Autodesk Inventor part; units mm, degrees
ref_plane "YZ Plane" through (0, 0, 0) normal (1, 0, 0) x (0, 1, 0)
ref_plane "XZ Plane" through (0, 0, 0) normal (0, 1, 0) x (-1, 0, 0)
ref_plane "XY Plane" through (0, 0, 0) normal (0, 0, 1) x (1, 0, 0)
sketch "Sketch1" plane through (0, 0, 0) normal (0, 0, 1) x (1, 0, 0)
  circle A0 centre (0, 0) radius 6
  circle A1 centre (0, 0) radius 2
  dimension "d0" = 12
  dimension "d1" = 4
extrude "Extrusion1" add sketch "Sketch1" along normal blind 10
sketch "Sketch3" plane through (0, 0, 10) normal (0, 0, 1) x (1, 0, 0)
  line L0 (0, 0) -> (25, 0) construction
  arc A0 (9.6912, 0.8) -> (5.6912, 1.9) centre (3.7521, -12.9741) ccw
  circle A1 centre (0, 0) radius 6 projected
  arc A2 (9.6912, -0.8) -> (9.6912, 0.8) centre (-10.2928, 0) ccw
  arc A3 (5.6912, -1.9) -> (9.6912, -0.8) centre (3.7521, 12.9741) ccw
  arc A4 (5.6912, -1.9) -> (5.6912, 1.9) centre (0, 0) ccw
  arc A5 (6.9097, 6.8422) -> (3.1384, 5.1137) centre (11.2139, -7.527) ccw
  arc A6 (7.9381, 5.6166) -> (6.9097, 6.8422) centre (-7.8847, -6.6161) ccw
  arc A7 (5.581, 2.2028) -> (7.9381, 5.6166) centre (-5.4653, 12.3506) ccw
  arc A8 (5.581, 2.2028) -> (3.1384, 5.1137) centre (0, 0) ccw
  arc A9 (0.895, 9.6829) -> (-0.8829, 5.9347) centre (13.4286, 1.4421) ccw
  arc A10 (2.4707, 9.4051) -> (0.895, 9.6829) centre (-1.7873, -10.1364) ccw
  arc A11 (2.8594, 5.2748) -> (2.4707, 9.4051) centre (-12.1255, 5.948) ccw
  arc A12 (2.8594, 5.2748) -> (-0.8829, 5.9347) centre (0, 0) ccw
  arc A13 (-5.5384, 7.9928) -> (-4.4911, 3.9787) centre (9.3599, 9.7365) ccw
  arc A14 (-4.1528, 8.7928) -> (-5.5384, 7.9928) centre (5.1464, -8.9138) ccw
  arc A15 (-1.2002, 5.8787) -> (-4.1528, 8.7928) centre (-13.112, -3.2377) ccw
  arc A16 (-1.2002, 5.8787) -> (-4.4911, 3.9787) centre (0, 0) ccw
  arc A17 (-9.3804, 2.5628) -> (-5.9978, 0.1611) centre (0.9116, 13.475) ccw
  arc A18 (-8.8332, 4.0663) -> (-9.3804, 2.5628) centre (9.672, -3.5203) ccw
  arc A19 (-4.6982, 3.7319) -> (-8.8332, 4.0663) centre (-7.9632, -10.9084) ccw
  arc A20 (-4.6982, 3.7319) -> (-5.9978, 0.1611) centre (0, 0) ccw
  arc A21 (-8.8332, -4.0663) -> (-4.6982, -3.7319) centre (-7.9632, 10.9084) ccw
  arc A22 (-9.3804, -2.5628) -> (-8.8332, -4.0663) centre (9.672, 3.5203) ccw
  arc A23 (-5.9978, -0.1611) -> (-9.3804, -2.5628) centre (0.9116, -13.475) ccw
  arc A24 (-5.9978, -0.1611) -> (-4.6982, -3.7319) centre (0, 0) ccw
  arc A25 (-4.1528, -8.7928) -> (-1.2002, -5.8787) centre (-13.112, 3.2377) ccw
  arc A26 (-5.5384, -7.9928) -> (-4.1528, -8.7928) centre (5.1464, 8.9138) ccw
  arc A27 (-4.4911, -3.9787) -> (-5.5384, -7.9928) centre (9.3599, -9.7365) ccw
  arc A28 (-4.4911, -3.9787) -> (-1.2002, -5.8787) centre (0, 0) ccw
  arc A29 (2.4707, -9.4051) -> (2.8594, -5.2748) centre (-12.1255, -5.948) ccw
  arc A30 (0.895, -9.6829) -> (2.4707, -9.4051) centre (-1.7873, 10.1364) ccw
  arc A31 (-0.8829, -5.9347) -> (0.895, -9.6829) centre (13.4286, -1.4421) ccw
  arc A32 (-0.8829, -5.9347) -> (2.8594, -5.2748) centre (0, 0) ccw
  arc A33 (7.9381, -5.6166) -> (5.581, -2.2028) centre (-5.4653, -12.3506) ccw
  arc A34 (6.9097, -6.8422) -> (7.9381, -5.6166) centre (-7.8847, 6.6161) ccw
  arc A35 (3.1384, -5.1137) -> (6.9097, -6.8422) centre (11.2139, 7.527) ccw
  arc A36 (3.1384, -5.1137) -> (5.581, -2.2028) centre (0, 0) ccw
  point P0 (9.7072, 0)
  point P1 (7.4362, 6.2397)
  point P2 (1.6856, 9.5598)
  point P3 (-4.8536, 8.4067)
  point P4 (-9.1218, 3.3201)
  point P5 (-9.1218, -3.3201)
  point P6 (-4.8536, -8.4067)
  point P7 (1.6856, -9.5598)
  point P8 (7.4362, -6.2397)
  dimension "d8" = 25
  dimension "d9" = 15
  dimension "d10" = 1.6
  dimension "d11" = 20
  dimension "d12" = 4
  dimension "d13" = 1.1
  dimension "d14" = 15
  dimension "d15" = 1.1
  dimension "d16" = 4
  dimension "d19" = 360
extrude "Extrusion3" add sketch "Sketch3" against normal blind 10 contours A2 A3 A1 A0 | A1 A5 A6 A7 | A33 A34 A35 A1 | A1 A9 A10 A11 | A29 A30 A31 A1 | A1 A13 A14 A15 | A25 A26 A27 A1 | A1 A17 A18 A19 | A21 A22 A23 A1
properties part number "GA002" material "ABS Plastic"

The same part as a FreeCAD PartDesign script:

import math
import FreeCAD as App
import Part
import Sketcher

V = App.Vector

doc = App.newDocument("Part")
body = doc.addObject("PartDesign::Body", "Body")

sketch1 = doc.addObject("Sketcher::SketchObject", "Sketch")
body.addObject(sketch1)
sketch1.AttachmentSupport = (doc.XY_Plane, [""])
sketch1.MapMode = "FlatFace"
sketch1.addGeometry(Part.Circle(V(0, 0, 0), V(0, 0, 1), 6), False)
sketch1.addGeometry(Part.Circle(V(0, 0, 0), V(0, 0, 1), 2), False)
sketch1.addConstraint(Sketcher.Constraint("Coincident", 0, 3, -1, 1))
sketch1.addConstraint(Sketcher.Constraint("Coincident", 1, 3, -1, 1))
sketch1.addConstraint(Sketcher.Constraint("Diameter", 0, 12.0))
sketch1.addConstraint(Sketcher.Constraint("Diameter", 1, 4.0))
pad1 = doc.addObject("PartDesign::Pad", "Pad")
body.addObject(pad1)
pad1.Profile = sketch1
pad1.Length = 10

sketch2 = doc.addObject("Sketcher::SketchObject", "Sketch001")
body.addObject(sketch2)
sketch2.AttachmentSupport = (doc.XY_Plane, [""])
sketch2.MapMode = "FlatFace"
sketch2.AttachmentOffset = App.Placement(V(0, 0, 10), App.Rotation())
sketch2.addGeometry(Part.ArcOfCircle(Part.Circle(V(-10.3, 0, 0), V(0, 0, 1), 20), math.radians(-2.29), math.radians(2.29)), False)
sketch2.addGeometry(Part.ArcOfCircle(Part.Circle(V(3.8, -13, 0), V(0, 0, 1), 15), math.radians(66.68), math.radians(82.57)), False)
sketch2.addGeometry(Part.ArcOfCircle(Part.Circle(V(0, 0, 0), V(0, 0, 1), 6), math.radians(-18), math.radians(18)), False)
sketch2.addGeometry(Part.ArcOfCircle(Part.Circle(V(3.8, 13, 0), V(0, 0, 1), 15), math.radians(-82.57), math.radians(-66.68)), False)
sketch2.addGeometry(Part.ArcOfCircle(Part.Circle(V(0, 0, 0), V(0, 0, 1), 6), math.radians(22), math.radians(58)), False)
sketch2.addGeometry(Part.ArcOfCircle(Part.Circle(V(-5.5, 12.3, 0), V(0, 0, 1), 15), math.radians(-42.57), math.radians(-26.67)), False)
sketch2.addGeometry(Part.ArcOfCircle(Part.Circle(V(-7.9, -6.6, 0), V(0, 0, 1), 20), math.radians(37.71), math.radians(42.29)), False)
sketch2.addGeometry(Part.ArcOfCircle(Part.Circle(V(11.2, -7.5, 0), V(0, 0, 1), 15), math.radians(106.68), math.radians(122.57)), False)
sketch2.addGeometry(Part.ArcOfCircle(Part.Circle(V(-5.5, -12.4, 0), V(0, 0, 1), 15), math.radians(26.68), math.radians(42.57)), False)
sketch2.addGeometry(Part.ArcOfCircle(Part.Circle(V(0, 0, 0), V(0, 0, 1), 6), math.radians(-58), math.radians(-22)), False)
sketch2.addGeometry(Part.ArcOfCircle(Part.Circle(V(11.2, 7.5, 0), V(0, 0, 1), 15), math.radians(-122.57), math.radians(-106.67)), False)
sketch2.addGeometry(Part.ArcOfCircle(Part.Circle(V(-7.9, 6.6, 0), V(0, 0, 1), 20), math.radians(-42.29), math.radians(-37.71)), False)
sketch2.addGeometry(Part.ArcOfCircle(Part.Circle(V(0, 0, 0), V(0, 0, 1), 6), math.radians(62), math.radians(98)), False)
sketch2.addGeometry(Part.ArcOfCircle(Part.Circle(V(-12.1, 5.9, 0), V(0, 0, 1), 15), math.radians(-2.57), math.radians(13.32)), False)
sketch2.addGeometry(Part.ArcOfCircle(Part.Circle(V(-1.8, -10.1, 0), V(0, 0, 1), 20), math.radians(77.71), math.radians(82.3)), False)
sketch2.addGeometry(Part.ArcOfCircle(Part.Circle(V(13.4, 1.4, 0), V(0, 0, 1), 15), math.radians(146.68), math.radians(162.57)), False)
sketch2.addGeometry(Part.ArcOfCircle(Part.Circle(V(-12.1, -5.9, 0), V(0, 0, 1), 15), math.radians(-13.32), math.radians(2.57)), False)
sketch2.addGeometry(Part.ArcOfCircle(Part.Circle(V(0, 0, 0), V(0, 0, 1), 6), math.radians(-98), math.radians(-62)), False)
sketch2.addGeometry(Part.ArcOfCircle(Part.Circle(V(13.4, -1.4, 0), V(0, 0, 1), 15), math.radians(-162.57), math.radians(-146.68)), False)
sketch2.addGeometry(Part.ArcOfCircle(Part.Circle(V(-1.8, 10.2, 0), V(0, 0, 1), 20), math.radians(-82.29), math.radians(-77.71)), False)
sketch2.addGeometry(Part.ArcOfCircle(Part.Circle(V(0, 0, 0), V(0, 0, 1), 6), math.radians(102), math.radians(138)), False)
sketch2.addGeometry(Part.ArcOfCircle(Part.Circle(V(-13.1, -3.2, 0), V(0, 0, 1), 15), math.radians(37.43), math.radians(53.32)), False)
sketch2.addGeometry(Part.ArcOfCircle(Part.Circle(V(5.1, -8.9, 0), V(0, 0, 1), 20), math.radians(117.71), math.radians(122.29)), False)
sketch2.addGeometry(Part.ArcOfCircle(Part.Circle(V(9.4, 9.7, 0), V(0, 0, 1), 15), math.radians(-173.32), math.radians(-157.43)), False)
sketch2.addGeometry(Part.ArcOfCircle(Part.Circle(V(-13.1, 3.2, 0), V(0, 0, 1), 15), math.radians(-53.32), math.radians(-37.43)), False)
sketch2.addGeometry(Part.ArcOfCircle(Part.Circle(V(0, 0, 0), V(0, 0, 1), 6), math.radians(-138), math.radians(-102)), False)
sketch2.addGeometry(Part.ArcOfCircle(Part.Circle(V(9.4, -9.7, 0), V(0, 0, 1), 15), math.radians(157.43), math.radians(173.33)), False)
sketch2.addGeometry(Part.ArcOfCircle(Part.Circle(V(5.2, 8.9, 0), V(0, 0, 1), 20), math.radians(-122.29), math.radians(-117.71)), False)
sketch2.addGeometry(Part.ArcOfCircle(Part.Circle(V(0, 0, 0), V(0, 0, 1), 6), math.radians(142), math.radians(178)), False)
sketch2.addGeometry(Part.ArcOfCircle(Part.Circle(V(-8, -10.9, 0), V(0, 0, 1), 15), math.radians(77.43), math.radians(93.33)), False)
sketch2.addGeometry(Part.ArcOfCircle(Part.Circle(V(9.7, -3.5, 0), V(0, 0, 1), 20), math.radians(157.71), math.radians(162.29)), False)
sketch2.addGeometry(Part.ArcOfCircle(Part.Circle(V(0.9, 13.5, 0), V(0, 0, 1), 15), math.radians(-133.33), math.radians(-117.43)), False)
sketch2.addGeometry(Part.ArcOfCircle(Part.Circle(V(-8, 10.9, 0), V(0, 0, 1), 15), math.radians(-93.33), math.radians(-77.43)), False)
sketch2.addGeometry(Part.ArcOfCircle(Part.Circle(V(0, 0, 0), V(0, 0, 1), 6), math.radians(-178), math.radians(-142)), False)
sketch2.addGeometry(Part.ArcOfCircle(Part.Circle(V(0.9, -13.5, 0), V(0, 0, 1), 15), math.radians(117.43), math.radians(133.32)), False)
sketch2.addGeometry(Part.ArcOfCircle(Part.Circle(V(9.7, 3.5, 0), V(0, 0, 1), 20), math.radians(-162.29), math.radians(-157.71)), False)
sketch2.addConstraint(Sketcher.Constraint("Coincident", 0, 2, 1, 1))
sketch2.addConstraint(Sketcher.Constraint("Coincident", 1, 2, 2, 2))
sketch2.addConstraint(Sketcher.Constraint("Coincident", 2, 1, 3, 1))
sketch2.addConstraint(Sketcher.Constraint("Coincident", 3, 2, 0, 1))
sketch2.addConstraint(Sketcher.Constraint("Coincident", 4, 1, 5, 1))
sketch2.addConstraint(Sketcher.Constraint("Coincident", 5, 2, 6, 1))
sketch2.addConstraint(Sketcher.Constraint("Coincident", 6, 2, 7, 1))
sketch2.addConstraint(Sketcher.Constraint("Coincident", 7, 2, 4, 2))
sketch2.addConstraint(Sketcher.Constraint("Coincident", 8, 2, 9, 2))
sketch2.addConstraint(Sketcher.Constraint("Coincident", 9, 1, 10, 1))
sketch2.addConstraint(Sketcher.Constraint("Coincident", 10, 2, 11, 1))
sketch2.addConstraint(Sketcher.Constraint("Coincident", 11, 2, 8, 1))
sketch2.addConstraint(Sketcher.Constraint("Coincident", 12, 1, 13, 1))
sketch2.addConstraint(Sketcher.Constraint("Coincident", 13, 2, 14, 1))
sketch2.addConstraint(Sketcher.Constraint("Coincident", 14, 2, 15, 1))
sketch2.addConstraint(Sketcher.Constraint("Coincident", 15, 2, 12, 2))
sketch2.addConstraint(Sketcher.Constraint("Coincident", 16, 2, 17, 2))
sketch2.addConstraint(Sketcher.Constraint("Coincident", 17, 1, 18, 1))
sketch2.addConstraint(Sketcher.Constraint("Coincident", 18, 2, 19, 1))
sketch2.addConstraint(Sketcher.Constraint("Coincident", 19, 2, 16, 1))
sketch2.addConstraint(Sketcher.Constraint("Coincident", 20, 1, 21, 1))
sketch2.addConstraint(Sketcher.Constraint("Coincident", 21, 2, 22, 1))
sketch2.addConstraint(Sketcher.Constraint("Coincident", 22, 2, 23, 1))
sketch2.addConstraint(Sketcher.Constraint("Coincident", 23, 2, 20, 2))
sketch2.addConstraint(Sketcher.Constraint("Coincident", 24, 2, 25, 2))
sketch2.addConstraint(Sketcher.Constraint("Coincident", 25, 1, 26, 1))
sketch2.addConstraint(Sketcher.Constraint("Coincident", 26, 2, 27, 1))
sketch2.addConstraint(Sketcher.Constraint("Coincident", 27, 2, 24, 1))
sketch2.addConstraint(Sketcher.Constraint("Coincident", 28, 1, 29, 1))
sketch2.addConstraint(Sketcher.Constraint("Coincident", 29, 2, 30, 1))
sketch2.addConstraint(Sketcher.Constraint("Coincident", 30, 2, 31, 1))
sketch2.addConstraint(Sketcher.Constraint("Coincident", 31, 2, 28, 2))
sketch2.addConstraint(Sketcher.Constraint("Coincident", 32, 2, 33, 2))
sketch2.addConstraint(Sketcher.Constraint("Coincident", 33, 1, 34, 1))
sketch2.addConstraint(Sketcher.Constraint("Coincident", 34, 2, 35, 1))
sketch2.addConstraint(Sketcher.Constraint("Coincident", 35, 2, 32, 1))
sketch2.addConstraint(Sketcher.Constraint("Coincident", 2, 3, -1, 1))
sketch2.addConstraint(Sketcher.Constraint("Coincident", 4, 3, -1, 1))
sketch2.addConstraint(Sketcher.Constraint("Coincident", 9, 3, -1, 1))
sketch2.addConstraint(Sketcher.Constraint("Coincident", 12, 3, -1, 1))
sketch2.addConstraint(Sketcher.Constraint("Coincident", 17, 3, -1, 1))
sketch2.addConstraint(Sketcher.Constraint("Coincident", 20, 3, -1, 1))
sketch2.addConstraint(Sketcher.Constraint("Coincident", 25, 3, -1, 1))
sketch2.addConstraint(Sketcher.Constraint("Coincident", 28, 3, -1, 1))
sketch2.addConstraint(Sketcher.Constraint("Coincident", 33, 3, -1, 1))
sketch2.addConstraint(Sketcher.Constraint("Equal", 1, 3))
sketch2.addConstraint(Sketcher.Constraint("Equal", 2, 4))
sketch2.addConstraint(Sketcher.Constraint("Equal", 4, 9))
sketch2.addConstraint(Sketcher.Constraint("Equal", 9, 12))
sketch2.addConstraint(Sketcher.Constraint("Equal", 3, 13))
sketch2.addConstraint(Sketcher.Constraint("Equal", 13, 15))
sketch2.addConstraint(Sketcher.Constraint("Equal", 15, 16))
sketch2.addConstraint(Sketcher.Constraint("Equal", 12, 17))
sketch2.addConstraint(Sketcher.Constraint("Equal", 16, 18))
sketch2.addConstraint(Sketcher.Constraint("Equal", 17, 20))
sketch2.addConstraint(Sketcher.Constraint("Equal", 18, 21))
sketch2.addConstraint(Sketcher.Constraint("Equal", 21, 24))
sketch2.addConstraint(Sketcher.Constraint("Equal", 20, 25))
sketch2.addConstraint(Sketcher.Constraint("Equal", 25, 28))
sketch2.addConstraint(Sketcher.Constraint("Equal", 24, 29))
sketch2.addConstraint(Sketcher.Constraint("Equal", 29, 32))
sketch2.addConstraint(Sketcher.Constraint("Equal", 28, 33))
sketch2.addConstraint(Sketcher.Constraint("Symmetric", 1, 3, 3, 3, -1))
sketch2.addConstraint(Sketcher.Constraint("Symmetric", 13, 3, 16, 3, -1))
sketch2.addConstraint(Sketcher.Constraint("Symmetric", 15, 3, 18, 3, -1))
sketch2.addConstraint(Sketcher.Constraint("Symmetric", 21, 3, 24, 3, -1))
sketch2.addConstraint(Sketcher.Constraint("Symmetric", 29, 3, 32, 3, -1))
sketch2.addConstraint(Sketcher.Constraint("Symmetric", 6, 2, 10, 2, -1))
sketch2.addConstraint(Sketcher.Constraint("Symmetric", 5, 2, 11, 2, -1))
sketch2.addConstraint(Sketcher.Constraint("Symmetric", 22, 2, 26, 2, -1))
sketch2.addConstraint(Sketcher.Constraint("Symmetric", 30, 2, 34, 2, -1))
sketch2.addConstraint(Sketcher.Constraint("PointOnObject", 0, 3, -1))
sketch2.addConstraint(Sketcher.Constraint("Vertical", 4, 1, 8, 2))
sketch2.addConstraint(Sketcher.Constraint("Vertical", 7, 2, 9, 1))
sketch2.addConstraint(Sketcher.Constraint("Vertical", 14, 2, 18, 2))
sketch2.addConstraint(Sketcher.Constraint("Vertical", 23, 2, 25, 1))
sketch2.addConstraint(Sketcher.Constraint("Vertical", 21, 2, 27, 2))
sketch2.addConstraint(Sketcher.Constraint("Vertical", 29, 2, 35, 2))
sketch2.addConstraint(Sketcher.Constraint("Radius", 0, 20.0))
sketch2.addConstraint(Sketcher.Constraint("Radius", 1, 15.0))
sketch2.addConstraint(Sketcher.Constraint("Radius", 2, 6.0))
sketch2.addConstraint(Sketcher.Constraint("Radius", 19, 20.022))
sketch2.addConstraint(Sketcher.Constraint("DistanceY", -1, 1, 0, 2, 0.8))
sketch2.addConstraint(Sketcher.Constraint("DistanceY", -1, 1, 1, 2, 1.9))
sketch2.addConstraint(Sketcher.Constraint("Radius", 5, 14.9987))
sketch2.addConstraint(Sketcher.Constraint("Radius", 6, 20.0025))
sketch2.addConstraint(Sketcher.Constraint("Radius", 7, 15.0017))
sketch2.addConstraint(Sketcher.Constraint("Radius", 8, 15.0011))
sketch2.addConstraint(Sketcher.Constraint("Radius", 10, 14.9984))
sketch2.addConstraint(Sketcher.Constraint("Radius", 11, 19.9975))
sketch2.addConstraint(Sketcher.Constraint("Radius", 14, 19.9782))
sketch2.addConstraint(Sketcher.Constraint("Radius", 22, 19.9886))
sketch2.addConstraint(Sketcher.Constraint("Radius", 23, 15.0046))
sketch2.addConstraint(Sketcher.Constraint("Radius", 26, 14.9955))
sketch2.addConstraint(Sketcher.Constraint("Radius", 27, 20.0114))
sketch2.addConstraint(Sketcher.Constraint("Radius", 30, 19.9863))
sketch2.addConstraint(Sketcher.Constraint("Radius", 31, 14.9972))
sketch2.addConstraint(Sketcher.Constraint("Radius", 34, 15.0028))
sketch2.addConstraint(Sketcher.Constraint("Radius", 35, 20.0136))
sketch2.addConstraint(Sketcher.Constraint("DistanceX", -1, 1, 1, 3, 3.752))
sketch2.addConstraint(Sketcher.Constraint("DistanceX", -1, 1, 10, 3, 11.213))
sketch2.addConstraint(Sketcher.Constraint("DistanceY", -1, 1, 13, 3, 5.948))
sketch2.addConstraint(Sketcher.Constraint("DistanceX", 14, 3, -1, 1, 1.783))
sketch2.addConstraint(Sketcher.Constraint("DistanceY", 14, 3, -1, 1, 10.115))
sketch2.addConstraint(Sketcher.Constraint("DistanceY", -1, 1, 15, 3, 1.442))
sketch2.addConstraint(Sketcher.Constraint("DistanceY", -1, 1, 19, 3, 10.158))
sketch2.addConstraint(Sketcher.Constraint("DistanceX", 21, 3, -1, 1, 13.112))
sketch2.addConstraint(Sketcher.Constraint("DistanceX", -1, 1, 22, 3, 5.141))
sketch2.addConstraint(Sketcher.Constraint("DistanceY", 26, 3, -1, 1, 9.735))
sketch2.addConstraint(Sketcher.Constraint("DistanceX", -1, 1, 34, 3, 0.913))
sketch2.addConstraint(Sketcher.Constraint("DistanceX", -1, 1, 35, 3, 9.685))
sketch2.addConstraint(Sketcher.Constraint("DistanceX", -1, 1, 4, 1, 5.581))
sketch2.addConstraint(Sketcher.Constraint("DistanceX", -1, 1, 5, 2, 7.938))
sketch2.addConstraint(Sketcher.Constraint("DistanceY", -1, 1, 13, 2, 9.405))
sketch2.addConstraint(Sketcher.Constraint("DistanceX", -1, 1, 14, 2, 0.895))
sketch2.addConstraint(Sketcher.Constraint("DistanceX", 23, 2, -1, 1, 4.491))
sketch2.addConstraint(Sketcher.Constraint("DistanceY", -1, 1, 28, 1, 3.732))
sketch2.addConstraint(Sketcher.Constraint("DistanceY", -1, 1, 31, 2, 0.161))
sketch2.addConstraint(Sketcher.Constraint("DistanceY", 33, 1, -1, 1, 0.161))
sketch2.addConstraint(Sketcher.Constraint("DistanceX", 5, 3, -1, 1, 5.4643))
sketch2.addConstraint(Sketcher.Constraint("DistanceX", 6, 3, -1, 1, 7.8867))
sketch2.addConstraint(Sketcher.Constraint("DistanceY", 7, 3, -1, 1, 7.5285))
sketch2.addConstraint(Sketcher.Constraint("DistanceY", 21, 3, -1, 1, 3.2377))
sketch2.addConstraint(Sketcher.Constraint("DistanceY", 22, 3, -1, 1, 8.9038))
sketch2.addConstraint(Sketcher.Constraint("DistanceX", 29, 3, -1, 1, 7.9632))
sketch2.addConstraint(Sketcher.Constraint("DistanceY", 30, 3, -1, 1, 3.5154))
pad2 = doc.addObject("PartDesign::Pad", "Pad001")
body.addObject(pad2)
pad2.Profile = sketch2
pad2.Length = 10
pad2.Reversed = True

doc.recompute()
